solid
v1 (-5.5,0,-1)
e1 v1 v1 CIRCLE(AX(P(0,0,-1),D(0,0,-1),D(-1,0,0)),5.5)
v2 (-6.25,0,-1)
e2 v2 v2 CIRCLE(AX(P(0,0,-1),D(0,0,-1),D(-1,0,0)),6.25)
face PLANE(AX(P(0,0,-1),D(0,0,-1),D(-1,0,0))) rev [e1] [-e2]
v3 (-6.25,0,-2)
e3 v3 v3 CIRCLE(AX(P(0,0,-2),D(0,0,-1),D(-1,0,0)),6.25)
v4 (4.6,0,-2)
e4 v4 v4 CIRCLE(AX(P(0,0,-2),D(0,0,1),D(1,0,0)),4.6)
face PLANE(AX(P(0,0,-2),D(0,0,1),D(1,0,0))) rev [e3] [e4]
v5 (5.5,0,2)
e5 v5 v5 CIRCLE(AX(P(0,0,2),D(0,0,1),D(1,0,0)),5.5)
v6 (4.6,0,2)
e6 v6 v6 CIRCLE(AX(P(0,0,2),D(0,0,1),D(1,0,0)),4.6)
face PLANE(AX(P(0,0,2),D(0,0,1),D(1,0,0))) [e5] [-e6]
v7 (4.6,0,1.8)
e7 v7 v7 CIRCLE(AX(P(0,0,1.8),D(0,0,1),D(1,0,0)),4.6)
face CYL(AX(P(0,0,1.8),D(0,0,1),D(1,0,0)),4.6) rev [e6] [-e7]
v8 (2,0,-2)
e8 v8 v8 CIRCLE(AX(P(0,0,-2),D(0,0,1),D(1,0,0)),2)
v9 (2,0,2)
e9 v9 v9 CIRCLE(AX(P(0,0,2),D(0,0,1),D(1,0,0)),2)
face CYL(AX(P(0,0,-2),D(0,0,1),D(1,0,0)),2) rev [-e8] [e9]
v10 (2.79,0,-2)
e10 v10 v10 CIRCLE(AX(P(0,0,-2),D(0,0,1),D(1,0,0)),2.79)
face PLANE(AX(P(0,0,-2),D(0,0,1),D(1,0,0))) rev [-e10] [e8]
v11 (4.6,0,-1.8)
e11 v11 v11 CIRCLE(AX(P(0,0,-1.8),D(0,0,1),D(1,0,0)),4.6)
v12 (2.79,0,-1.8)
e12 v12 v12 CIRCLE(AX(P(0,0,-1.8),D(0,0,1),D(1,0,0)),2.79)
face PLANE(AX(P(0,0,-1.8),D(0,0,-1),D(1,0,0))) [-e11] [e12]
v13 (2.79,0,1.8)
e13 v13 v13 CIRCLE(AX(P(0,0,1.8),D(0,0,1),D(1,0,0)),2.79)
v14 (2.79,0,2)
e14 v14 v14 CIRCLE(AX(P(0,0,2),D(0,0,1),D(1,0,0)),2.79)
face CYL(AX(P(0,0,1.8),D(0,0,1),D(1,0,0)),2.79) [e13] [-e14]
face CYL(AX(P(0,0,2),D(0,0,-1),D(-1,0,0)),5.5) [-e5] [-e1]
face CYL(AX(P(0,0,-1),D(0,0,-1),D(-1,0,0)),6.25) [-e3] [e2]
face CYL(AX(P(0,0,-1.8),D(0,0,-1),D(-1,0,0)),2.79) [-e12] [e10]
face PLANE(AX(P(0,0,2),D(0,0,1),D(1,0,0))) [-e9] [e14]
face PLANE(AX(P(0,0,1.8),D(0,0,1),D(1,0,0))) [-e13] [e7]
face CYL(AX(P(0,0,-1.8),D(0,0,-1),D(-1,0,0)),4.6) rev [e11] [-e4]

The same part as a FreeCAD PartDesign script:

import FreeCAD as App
import Part
import Sketcher

V = App.Vector

doc = App.newDocument("Part")
body = doc.addObject("PartDesign::Body", "Body")

sketch1 = body.newObject("Sketcher::SketchObject", "Sketch")
sketch1.AttachmentSupport = (doc.getObject("XY_Plane"), [""])
sketch1.MapMode = "FlatFace"
sketch1.addGeometry(Part.Circle(V(0, 0, 0), V(0, 0, 1), 6), False)
sketch1.addConstraint([
    Sketcher.Constraint("Coincident", 0, 3, -1, 1),
    Sketcher.Constraint("Diameter", 0, 11.0),
])
pad1 = body.newObject("PartDesign::Pad", "Pad")
pad1.Profile = sketch1
pad1.Length = 4
pad1.Midplane = True

sketch2 = body.newObject("Sketcher::SketchObject", "Sketch001")
sketch2.AttachmentSupport = (doc.getObject("XY_Plane"), [""])
sketch2.MapMode = "FlatFace"
sketch2.AttachmentOffset = App.Placement(V(0, 0, -2), App.Rotation())
sketch2.addGeometry(Part.Circle(V(0, 0, 0), V(0, 0, 1), 6), False)
sketch2.addConstraint([
    Sketcher.Constraint("Coincident", 0, 3, -1, 1),
    Sketcher.Constraint("Diameter", 0, 12.5),
])
pad2 = body.newObject("PartDesign::Pad", "Pad001")
pad2.Profile = sketch2
pad2.Length = 1

sketch3 = body.newObject("Sketcher::SketchObject", "Sketch002")
sketch3.AttachmentSupport = (doc.getObject("XY_Plane"), [""])
sketch3.MapMode = "FlatFace"
sketch3.AttachmentOffset = App.Placement(V(0, 0, 2), App.Rotation())
sketch3.addGeometry(Part.Circle(V(0, 0, 0), V(0, 0, 1), 2), False)
sketch3.addConstraint([
    Sketcher.Constraint("Coincident", 0, 3, -1, 1),
    Sketcher.Constraint("Diameter", 0, 4.0),
])
pocket1 = body.newObject("PartDesign::Pocket", "Pocket")
pocket1.Profile = sketch3
pocket1.Type = "ThroughAll"

sketch4 = body.newObject("Sketcher::SketchObject", "Sketch003")
sketch4.AttachmentSupport = (doc.getObject("XY_Plane"), [""])
sketch4.MapMode = "FlatFace"
sketch4.AttachmentOffset = App.Placement(V(0, 0, 2), App.Rotation())
sketch4.addGeometry([
    Part.Circle(V(0, 0, 0), V(0, 0, 1), 4.6),
    Part.Circle(V(0, 0, 0), V(0, 0, 1), 2.8),
], False)
sketch4.addConstraint([
    Sketcher.Constraint("Coincident", 0, 3, -1, 1),
    Sketcher.Constraint("Coincident", 1, 3, -1, 1),
    Sketcher.Constraint("Diameter", 0, 9.2),
    Sketcher.Constraint("Diameter", 1, 5.58),
])
pocket2 = body.newObject("PartDesign::Pocket", "Pocket001")
pocket2.Profile = sketch4
pocket2.Length = 0.2
doc.recompute()

mirrored = body.newObject("PartDesign::Mirrored", "Mirrored")
mirrored.Originals = [pocket2]
mirrored.MirrorPlane = (doc.getObject("XY_Plane"), [""])
body.Tip = mirrored

doc.recompute()
